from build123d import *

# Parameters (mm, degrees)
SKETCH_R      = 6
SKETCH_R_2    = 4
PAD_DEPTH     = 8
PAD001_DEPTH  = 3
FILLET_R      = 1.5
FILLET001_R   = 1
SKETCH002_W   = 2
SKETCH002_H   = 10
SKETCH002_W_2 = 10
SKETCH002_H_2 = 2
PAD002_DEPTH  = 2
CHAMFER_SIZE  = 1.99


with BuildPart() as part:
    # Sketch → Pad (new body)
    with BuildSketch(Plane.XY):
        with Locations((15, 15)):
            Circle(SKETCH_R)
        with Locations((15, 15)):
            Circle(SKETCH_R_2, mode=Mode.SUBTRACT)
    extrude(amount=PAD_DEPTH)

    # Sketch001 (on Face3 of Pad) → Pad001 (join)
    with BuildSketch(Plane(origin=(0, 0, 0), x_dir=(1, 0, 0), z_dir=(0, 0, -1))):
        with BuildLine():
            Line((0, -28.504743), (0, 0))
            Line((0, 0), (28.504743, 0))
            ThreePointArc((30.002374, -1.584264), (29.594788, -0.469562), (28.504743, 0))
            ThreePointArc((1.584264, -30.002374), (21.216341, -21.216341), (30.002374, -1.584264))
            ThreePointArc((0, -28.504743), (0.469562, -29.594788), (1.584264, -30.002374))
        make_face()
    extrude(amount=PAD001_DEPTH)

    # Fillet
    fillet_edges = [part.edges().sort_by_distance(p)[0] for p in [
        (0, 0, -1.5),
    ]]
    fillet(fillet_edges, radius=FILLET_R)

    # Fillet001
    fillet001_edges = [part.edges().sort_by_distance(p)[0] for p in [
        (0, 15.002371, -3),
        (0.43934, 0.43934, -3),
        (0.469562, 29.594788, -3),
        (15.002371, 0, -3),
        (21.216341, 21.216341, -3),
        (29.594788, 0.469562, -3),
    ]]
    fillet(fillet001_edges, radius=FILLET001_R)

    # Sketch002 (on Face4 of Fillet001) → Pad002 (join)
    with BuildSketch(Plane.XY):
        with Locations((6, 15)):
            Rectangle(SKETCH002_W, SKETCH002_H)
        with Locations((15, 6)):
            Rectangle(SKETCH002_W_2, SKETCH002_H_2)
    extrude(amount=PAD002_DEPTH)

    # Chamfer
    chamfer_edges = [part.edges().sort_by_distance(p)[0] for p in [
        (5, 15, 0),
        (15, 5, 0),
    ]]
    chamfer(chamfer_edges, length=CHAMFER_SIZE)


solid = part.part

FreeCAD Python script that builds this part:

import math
import FreeCAD as App
import Part
import Sketcher

V = App.Vector


def edges_at(feature, points):
    """Names of the edges that pass closest to the given points."""
    edges = feature.Shape.Edges
    near = lambda p: min(range(len(edges)), key=lambda i: edges[i].distToShape(Part.Vertex(*p))[0])
    return sorted({f"Edge{near(p) + 1}" for p in points})


def add_polygon(sketch, points):
    """Adds a closed chain of lines whose ends are joined by coincident constraints."""
    first, n = sketch.GeometryCount, len(points)
    for a, b in zip(points, points[1:] + points[:1]):
        sketch.addGeometry(Part.LineSegment(App.Vector(*a, 0), App.Vector(*b, 0)), False)
    for i in range(n):
        sketch.addConstraint(Sketcher.Constraint("Coincident", first + i, 2, first + (i + 1) % n, 1))

doc = App.newDocument("Part")
body = doc.addObject("PartDesign::Body", "Body")

# Sketch on XY plane
sketch1 = body.newObject("Sketcher::SketchObject", "Sketch")
sketch1.AttachmentSupport = (doc.getObject("XY_Plane"), [""])
sketch1.MapMode = "FlatFace"
sketch1.addGeometry(Part.Circle(V(15, 15, 0), V(0, 0, 1), 6), False)
sketch1.addGeometry(Part.Circle(V(15, 15, 0), V(0, 0, 1), 4), False)
sketch1.addConstraint(Sketcher.Constraint("Coincident", 1, 3, 0, 3))
sketch1.addConstraint(Sketcher.Constraint("Diameter", 0, 12.0))
sketch1.addConstraint(Sketcher.Constraint("Diameter", 1, 8.0))
sketch1.addConstraint(Sketcher.Constraint("DistanceX", -1, 1, 0, 3, 15.0))
sketch1.addConstraint(Sketcher.Constraint("DistanceY", -1, 1, 0, 3, 15.0))
pad1 = body.newObject("PartDesign::Pad", "Pad")
pad1.Profile = sketch1
pad1.Length = 8

# Sketch on XY plane
sketch2 = body.newObject("Sketcher::SketchObject", "Sketch001")
sketch2.AttachmentSupport = (doc.getObject("XY_Plane"), [""])
sketch2.MapMode = "FlatFace"
sketch2.addGeometry(Part.LineSegment(V(0, 0, 0), V(0, 28.5, 0)), False)
sketch2.addGeometry(Part.ArcOfCircle(Part.Circle(V(1.5, 28.5, 0), V(0, 0, 1), 1.5), math.radians(87), math.radians(180)), False)
sketch2.addGeometry(Part.ArcOfCircle(Part.Circle(V(-0.1, -0.1, 0), V(0, 0, 1), 30.2), math.radians(3), math.radians(87)), False)
sketch2.addGeometry(Part.ArcOfCircle(Part.Circle(V(28.5, 1.5, 0), V(0, 0, 1), 1.5), math.radians(-90), math.radians(3)), False)
sketch2.addGeometry(Part.LineSegment(V(28.5, 0, 0), V(0, 0, 0)), False)
sketch2.addConstraint(Sketcher.Constraint("Tangent", 0, 2, 1, 2))
sketch2.addConstraint(Sketcher.Constraint("Tangent", 1, 1, 2, 2))
sketch2.addConstraint(Sketcher.Constraint("Tangent", 2, 1, 3, 2))
sketch2.addConstraint(Sketcher.Constraint("Tangent", 3, 1, 4, 1))
sketch2.addConstraint(Sketcher.Constraint("Coincident", 4, 2, 0, 1))
sketch2.addConstraint(Sketcher.Constraint("Vertical", 0))
sketch2.addConstraint(Sketcher.Constraint("Horizontal", 4))
sketch2.addConstraint(Sketcher.Constraint("Coincident", 4, 2, -1, 1))
sketch2.addConstraint(Sketcher.Constraint("Equal", 1, 3))
sketch2.addConstraint(Sketcher.Constraint("Equal", 4, 0))
sketch2.addConstraint(Sketcher.Constraint("Radius", 1, 1.499999))
sketch2.addConstraint(Sketcher.Constraint("DistanceX", 2, 3, -1, 1, 0.109998))
sketch2.addConstraint(Sketcher.Constraint("Radius", 2, 30.159998))
pad2 = body.newObject("PartDesign::Pad", "Pad001")
pad2.Profile = sketch2
pad2.Length = 3
pad2.Reversed = True
doc.recompute()

fillet = body.newObject("PartDesign::Fillet", "Fillet")
fillet.Base = (pad2, edges_at(pad2, [(0, 0, -1.5)]))
fillet.Radius = 1.5
doc.recompute()

fillet2 = body.newObject("PartDesign::Fillet", "Fillet001")
fillet2.Base = (fillet, edges_at(fillet, [
    (0, 15.002, -3),
    (0.439, 0.439, -3),
    (0.47, 29.595, -3),
    (15.002, 0, -3),
    (21.216, 21.216, -3),
    (29.595, 0.47, -3),
]))
fillet2.Radius = 1

# Sketch on XY plane
sketch3 = body.newObject("Sketcher::SketchObject", "Sketch002")
sketch3.AttachmentSupport = (doc.getObject("XY_Plane"), [""])
sketch3.MapMode = "FlatFace"
add_polygon(sketch3, [(5, 20), (5, 10), (7, 10), (7, 20)])  # lines 0-3
add_polygon(sketch3, [(10, 7), (10, 5), (20, 5), (20, 7)])  # lines 4-7
sketch3.addConstraint(Sketcher.Constraint("Vertical", 0))
sketch3.addConstraint(Sketcher.Constraint("Horizontal", 1))
sketch3.addConstraint(Sketcher.Constraint("Vertical", 2))
sketch3.addConstraint(Sketcher.Constraint("Horizontal", 3))
sketch3.addConstraint(Sketcher.Constraint("Vertical", 4))
sketch3.addConstraint(Sketcher.Constraint("Horizontal", 5))
sketch3.addConstraint(Sketcher.Constraint("Vertical", 6))
sketch3.addConstraint(Sketcher.Constraint("Horizontal", 7))
sketch3.addConstraint(Sketcher.Constraint("Equal", 7, 0))
sketch3.addConstraint(Sketcher.Constraint("Equal", 3, 4))
sketch3.addConstraint(Sketcher.Constraint("DistanceX", 1, 1, 1, 2, 2.0))
sketch3.addConstraint(Sketcher.Constraint("DistanceX", 5, 1, 5, 2, 10.0))
sketch3.addConstraint(Sketcher.Constraint("DistanceX", -1, 1, 0, 2, 5.0))
sketch3.addConstraint(Sketcher.Constraint("DistanceY", -1, 1, 0, 2, 10.0))
sketch3.addConstraint(Sketcher.Constraint("DistanceX", -1, 1, 4, 2, 10.0))
sketch3.addConstraint(Sketcher.Constraint("DistanceY", -1, 1, 4, 2, 5.0))
pad3 = body.newObject("PartDesign::Pad", "Pad002")
pad3.Profile = sketch3
pad3.Length = 2
doc.recompute()

chamfer = body.newObject("PartDesign::Chamfer", "Chamfer")
chamfer.Base = (pad3, edges_at(pad3, [(5, 15, 0), (15, 5, 0)]))
chamfer.Size = 1.99

doc.recompute()
